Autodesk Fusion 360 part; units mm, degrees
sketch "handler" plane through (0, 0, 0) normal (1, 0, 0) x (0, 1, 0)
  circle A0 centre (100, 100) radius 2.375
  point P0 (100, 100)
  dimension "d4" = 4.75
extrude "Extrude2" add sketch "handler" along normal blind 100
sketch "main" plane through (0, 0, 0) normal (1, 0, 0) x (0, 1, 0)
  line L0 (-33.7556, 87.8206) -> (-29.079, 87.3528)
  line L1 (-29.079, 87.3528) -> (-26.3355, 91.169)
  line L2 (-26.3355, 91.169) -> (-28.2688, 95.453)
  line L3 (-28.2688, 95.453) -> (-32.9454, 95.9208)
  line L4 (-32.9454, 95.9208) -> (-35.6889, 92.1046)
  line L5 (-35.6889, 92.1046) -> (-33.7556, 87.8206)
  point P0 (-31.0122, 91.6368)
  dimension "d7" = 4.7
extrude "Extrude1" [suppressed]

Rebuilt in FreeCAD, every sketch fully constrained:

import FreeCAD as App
import Part
import Sketcher
from FreeCAD import Vector
Q = App.Units.Quantity

doc = App.newDocument("Part")
body = doc.addObject("PartDesign::Body", "Body")

# Sketch on YZ plane
sketch1 = body.newObject("Sketcher::SketchObject", "Sketch")
sketch1.AttachmentSupport = (doc.getObject("YZ_Plane"), [""])
sketch1.MapMode = "FlatFace"
sketch1.addGeometry(Part.Circle(Vector(100, 100, 0), Vector(0, 0, 1), 2.4), False)
sketch1.addConstraint([
    Sketcher.Constraint("Diameter", 0, Q("0.187 in")),
    Sketcher.Constraint("DistanceX", -1, 1, 0, 3, Q("3.937 in")),
    Sketcher.Constraint("DistanceY", -1, 1, 0, 3, Q("3.937 in")),
])
pad1 = body.newObject("PartDesign::Pad", "Pad")
pad1.Profile = sketch1
pad1.Length = Q("3.9370079 in")

doc.recompute()
